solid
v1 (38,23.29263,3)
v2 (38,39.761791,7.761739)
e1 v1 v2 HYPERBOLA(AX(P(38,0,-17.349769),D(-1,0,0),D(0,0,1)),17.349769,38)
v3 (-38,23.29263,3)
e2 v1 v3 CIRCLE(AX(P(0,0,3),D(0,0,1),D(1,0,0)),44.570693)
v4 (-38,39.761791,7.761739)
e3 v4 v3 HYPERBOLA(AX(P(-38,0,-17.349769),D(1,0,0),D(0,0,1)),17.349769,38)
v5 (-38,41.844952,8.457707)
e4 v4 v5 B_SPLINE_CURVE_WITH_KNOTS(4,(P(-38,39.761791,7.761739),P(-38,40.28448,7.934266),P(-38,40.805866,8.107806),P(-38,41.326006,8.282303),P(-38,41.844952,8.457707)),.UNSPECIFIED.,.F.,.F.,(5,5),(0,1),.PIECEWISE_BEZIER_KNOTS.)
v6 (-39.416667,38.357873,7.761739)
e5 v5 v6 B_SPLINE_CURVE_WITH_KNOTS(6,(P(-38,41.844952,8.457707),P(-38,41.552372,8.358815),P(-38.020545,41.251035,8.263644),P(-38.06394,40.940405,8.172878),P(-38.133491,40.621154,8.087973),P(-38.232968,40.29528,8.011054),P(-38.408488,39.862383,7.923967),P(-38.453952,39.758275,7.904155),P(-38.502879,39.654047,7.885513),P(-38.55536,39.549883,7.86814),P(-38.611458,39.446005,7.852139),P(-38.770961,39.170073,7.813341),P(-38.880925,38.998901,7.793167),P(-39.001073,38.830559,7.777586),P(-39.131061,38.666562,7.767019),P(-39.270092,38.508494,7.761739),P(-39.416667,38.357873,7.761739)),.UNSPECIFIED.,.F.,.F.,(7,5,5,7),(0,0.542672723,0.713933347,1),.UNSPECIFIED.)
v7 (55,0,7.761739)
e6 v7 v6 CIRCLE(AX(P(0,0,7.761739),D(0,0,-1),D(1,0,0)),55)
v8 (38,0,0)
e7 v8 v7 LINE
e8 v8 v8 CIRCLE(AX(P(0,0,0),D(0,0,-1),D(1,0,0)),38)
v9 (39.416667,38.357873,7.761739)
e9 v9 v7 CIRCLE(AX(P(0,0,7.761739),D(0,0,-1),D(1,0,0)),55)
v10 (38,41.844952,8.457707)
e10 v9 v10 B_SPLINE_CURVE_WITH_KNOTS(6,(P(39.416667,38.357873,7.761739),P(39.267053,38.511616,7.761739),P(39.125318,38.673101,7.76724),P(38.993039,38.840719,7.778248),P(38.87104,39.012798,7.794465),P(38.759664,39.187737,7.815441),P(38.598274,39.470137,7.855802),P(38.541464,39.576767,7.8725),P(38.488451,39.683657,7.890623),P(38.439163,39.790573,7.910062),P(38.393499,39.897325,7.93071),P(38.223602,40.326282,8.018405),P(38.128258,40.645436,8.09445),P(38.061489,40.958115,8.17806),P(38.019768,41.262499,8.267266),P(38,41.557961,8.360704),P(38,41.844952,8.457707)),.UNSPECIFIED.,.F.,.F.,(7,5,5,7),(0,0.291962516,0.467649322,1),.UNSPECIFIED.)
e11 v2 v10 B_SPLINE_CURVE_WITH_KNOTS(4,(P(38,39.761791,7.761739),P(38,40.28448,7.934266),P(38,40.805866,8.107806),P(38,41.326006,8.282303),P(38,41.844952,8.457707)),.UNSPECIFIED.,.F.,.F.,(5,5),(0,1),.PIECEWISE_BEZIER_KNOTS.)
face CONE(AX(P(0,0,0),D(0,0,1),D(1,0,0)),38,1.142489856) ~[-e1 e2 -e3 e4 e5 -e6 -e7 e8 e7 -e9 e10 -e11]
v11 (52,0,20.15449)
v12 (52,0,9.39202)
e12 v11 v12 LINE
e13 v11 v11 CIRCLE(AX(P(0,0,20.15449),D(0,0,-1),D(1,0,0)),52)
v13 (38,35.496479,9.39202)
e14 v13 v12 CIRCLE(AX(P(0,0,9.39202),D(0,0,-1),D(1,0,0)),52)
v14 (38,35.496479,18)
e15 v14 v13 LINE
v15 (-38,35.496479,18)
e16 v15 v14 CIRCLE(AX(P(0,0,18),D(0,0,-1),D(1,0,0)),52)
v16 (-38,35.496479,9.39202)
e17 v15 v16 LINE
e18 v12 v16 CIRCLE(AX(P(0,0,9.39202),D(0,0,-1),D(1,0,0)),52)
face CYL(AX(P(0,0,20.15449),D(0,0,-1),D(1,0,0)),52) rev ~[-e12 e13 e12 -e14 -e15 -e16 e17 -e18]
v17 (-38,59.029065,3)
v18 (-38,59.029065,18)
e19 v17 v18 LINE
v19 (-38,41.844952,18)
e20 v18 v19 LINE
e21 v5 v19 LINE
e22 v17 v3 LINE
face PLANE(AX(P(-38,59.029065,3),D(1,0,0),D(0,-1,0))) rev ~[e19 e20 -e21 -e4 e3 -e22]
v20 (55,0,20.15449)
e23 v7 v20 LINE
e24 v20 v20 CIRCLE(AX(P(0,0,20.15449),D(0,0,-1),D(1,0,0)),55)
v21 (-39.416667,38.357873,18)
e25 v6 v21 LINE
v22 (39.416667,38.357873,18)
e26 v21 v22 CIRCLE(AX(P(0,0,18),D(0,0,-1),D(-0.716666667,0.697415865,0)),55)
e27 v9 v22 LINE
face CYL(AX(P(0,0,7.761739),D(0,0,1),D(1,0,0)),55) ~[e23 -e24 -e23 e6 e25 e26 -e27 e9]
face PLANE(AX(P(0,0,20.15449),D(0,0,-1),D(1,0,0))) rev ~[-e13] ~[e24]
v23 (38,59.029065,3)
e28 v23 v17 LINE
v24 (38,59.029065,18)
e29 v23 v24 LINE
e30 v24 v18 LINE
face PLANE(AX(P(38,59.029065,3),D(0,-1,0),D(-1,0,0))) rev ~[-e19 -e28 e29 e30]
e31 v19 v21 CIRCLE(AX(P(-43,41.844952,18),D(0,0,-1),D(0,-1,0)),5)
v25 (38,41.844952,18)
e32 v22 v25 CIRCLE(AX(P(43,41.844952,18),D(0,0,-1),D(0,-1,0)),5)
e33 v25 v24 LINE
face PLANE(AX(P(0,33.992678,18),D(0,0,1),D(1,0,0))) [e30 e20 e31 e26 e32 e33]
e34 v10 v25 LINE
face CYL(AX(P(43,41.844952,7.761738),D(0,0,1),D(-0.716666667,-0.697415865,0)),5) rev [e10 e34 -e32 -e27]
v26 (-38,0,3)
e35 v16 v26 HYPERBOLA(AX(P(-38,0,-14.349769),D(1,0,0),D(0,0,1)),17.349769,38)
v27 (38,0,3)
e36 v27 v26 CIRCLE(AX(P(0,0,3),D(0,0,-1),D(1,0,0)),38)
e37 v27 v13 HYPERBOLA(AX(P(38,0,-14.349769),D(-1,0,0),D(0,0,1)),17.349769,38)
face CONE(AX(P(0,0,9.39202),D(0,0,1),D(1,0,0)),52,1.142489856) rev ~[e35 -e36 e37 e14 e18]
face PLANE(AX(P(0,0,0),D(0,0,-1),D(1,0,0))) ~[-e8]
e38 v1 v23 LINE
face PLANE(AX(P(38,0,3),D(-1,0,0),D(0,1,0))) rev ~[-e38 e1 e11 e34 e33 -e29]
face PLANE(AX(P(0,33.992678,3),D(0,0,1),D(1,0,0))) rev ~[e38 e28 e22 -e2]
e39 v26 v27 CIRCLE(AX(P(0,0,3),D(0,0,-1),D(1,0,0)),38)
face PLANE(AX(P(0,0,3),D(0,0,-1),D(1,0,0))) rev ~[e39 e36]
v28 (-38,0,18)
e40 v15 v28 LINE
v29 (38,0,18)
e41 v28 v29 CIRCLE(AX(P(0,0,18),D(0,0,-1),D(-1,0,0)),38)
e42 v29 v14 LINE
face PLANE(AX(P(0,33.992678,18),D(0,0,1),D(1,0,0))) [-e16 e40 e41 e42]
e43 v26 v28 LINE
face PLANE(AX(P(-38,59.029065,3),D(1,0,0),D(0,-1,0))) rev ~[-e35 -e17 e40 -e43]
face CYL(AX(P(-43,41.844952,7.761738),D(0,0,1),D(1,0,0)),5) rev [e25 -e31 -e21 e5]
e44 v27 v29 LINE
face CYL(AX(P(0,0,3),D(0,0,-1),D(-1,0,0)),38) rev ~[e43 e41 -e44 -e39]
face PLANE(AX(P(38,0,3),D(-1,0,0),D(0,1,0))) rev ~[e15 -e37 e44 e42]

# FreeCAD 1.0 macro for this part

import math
import FreeCAD as App
import Part
import Sketcher
Q = App.Units.Quantity


def edges_at(feature, points):
    """Names of the edges that pass closest to the given points."""
    edges = feature.Shape.Edges
    near = lambda p: min(range(len(edges)), key=lambda i: edges[i].distToShape(Part.Vertex(*p))[0])
    return sorted({f"Edge{near(p) + 1}" for p in points})

doc = App.newDocument("Part")
body = doc.addObject("PartDesign::Body", "Body")

sketch1 = body.newObject("Sketcher::SketchObject", "Sketch")
sketch1.AttachmentSupport = (doc.getObject("XZ_Plane"), [""])
sketch1.MapMode = "FlatFace"
sketch1.addGeometry(Part.LineSegment(App.Vector(0, 3, 0), App.Vector(0, 0, 0)), False)
sketch1.addGeometry(Part.LineSegment(App.Vector(0, 0, 0), App.Vector(38, 0, 0)), False)
sketch1.addGeometry(Part.LineSegment(App.Vector(38, 0, 0), App.Vector(55, 7.8, 0)), False)
sketch1.addGeometry(Part.LineSegment(App.Vector(55, 7.8, 0), App.Vector(55, 20.2, 0)), False)
sketch1.addGeometry(Part.LineSegment(App.Vector(55, 20.2, 0), App.Vector(52, 20.2, 0)), False)
sketch1.addGeometry(Part.LineSegment(App.Vector(52, 20.2, 0), App.Vector(52, 9.4, 0)), False)
sketch1.addGeometry(Part.LineSegment(App.Vector(52, 9.4, 0), App.Vector(38, 3, 0)), False)
sketch1.addGeometry(Part.LineSegment(App.Vector(38, 3, 0), App.Vector(0, 3, 0)), False)
sketch1.addConstraint(Sketcher.Constraint("Coincident", 0, 2, 1, 1))
sketch1.addConstraint(Sketcher.Constraint("Coincident", 1, 2, 2, 1))
sketch1.addConstraint(Sketcher.Constraint("Coincident", 2, 2, 3, 1))
sketch1.addConstraint(Sketcher.Constraint("Coincident", 3, 2, 4, 1))
sketch1.addConstraint(Sketcher.Constraint("Coincident", 4, 2, 5, 1))
sketch1.addConstraint(Sketcher.Constraint("Coincident", 5, 2, 6, 1))
sketch1.addConstraint(Sketcher.Constraint("Coincident", 6, 2, 7, 1))
sketch1.addConstraint(Sketcher.Constraint("Coincident", 7, 2, 0, 1))
sketch1.addConstraint(Sketcher.Constraint("Vertical", 0))
sketch1.addConstraint(Sketcher.Constraint("Horizontal", 1))
sketch1.addConstraint(Sketcher.Constraint("Vertical", 3))
sketch1.addConstraint(Sketcher.Constraint("Horizontal", 4))
sketch1.addConstraint(Sketcher.Constraint("Vertical", 5))
sketch1.addConstraint(Sketcher.Constraint("Horizontal", 7))
sketch1.addConstraint(Sketcher.Constraint("Coincident", 0, 2, -1, 1))
sketch1.addConstraint(Sketcher.Constraint("Parallel", 2, 6))
sketch1.addConstraint(Sketcher.Constraint("Vertical", 1, 2, 6, 2))
sketch1.addConstraint(Sketcher.Constraint("Equal", 4, 0))
sketch1.addConstraint(Sketcher.Constraint("DistanceX", 1, 1, 1, 2, Q("38 mm")))
sketch1.addConstraint(Sketcher.Constraint("DistanceX", 4, 2, 4, 1, Q("3 mm")))
sketch1.addConstraint(Sketcher.Constraint("DistanceX", -1, 1, 2, 2, Q("55 mm")))
sketch1.addConstraint(Sketcher.Constraint("DistanceY", 3, 1, 3, 2, Q("12.392751 mm")))
sketch1.addConstraint(Sketcher.Constraint("DistanceY", 5, 2, 5, 1, Q("10.76247 mm")))
revolution = body.newObject("PartDesign::Revolution", "Revolution")
revolution.Profile = sketch1
revolution.ReferenceAxis = (sketch1, ["V_Axis"])
revolution.Angle = 360

sketch2 = body.newObject("Sketcher::SketchObject", "Sketch001")
sketch2.AttachmentSupport = (doc.getObject("XY_Plane"), [""])
sketch2.MapMode = "FlatFace"
sketch2.AttachmentOffset = App.Placement(App.Vector(0, 0, 3), App.Rotation())
sketch2.addGeometry(Part.LineSegment(App.Vector(-38, 59, 0), App.Vector(-38, 0, 0)), False)
sketch2.addGeometry(Part.ArcOfCircle(Part.Circle(App.Vector(0, 0, 0), App.Vector(0, 0, 1), 38), math.radians(0), math.radians(180)), False)
sketch2.addGeometry(Part.LineSegment(App.Vector(38, 0, 0), App.Vector(38, 59, 0)), False)
sketch2.addGeometry(Part.LineSegment(App.Vector(38, 59, 0), App.Vector(-38, 59, 0)), False)
sketch2.addConstraint(Sketcher.Constraint("Tangent", 0, 2, 1, 2))
sketch2.addConstraint(Sketcher.Constraint("Tangent", 1, 1, 2, 1))
sketch2.addConstraint(Sketcher.Constraint("Coincident", 2, 2, 3, 1))
sketch2.addConstraint(Sketcher.Constraint("Coincident", 3, 2, 0, 1))
sketch2.addConstraint(Sketcher.Constraint("Vertical", 0))
sketch2.addConstraint(Sketcher.Constraint("Vertical", 2))
sketch2.addConstraint(Sketcher.Constraint("Horizontal", 3))
sketch2.addConstraint(Sketcher.Constraint("Coincident", 1, 3, -1, 1))
sketch2.addConstraint(Sketcher.Constraint("Radius", 1, Q("38 mm")))
sketch2.addConstraint(Sketcher.Constraint("DistanceY", 0, 2, 0, 1, Q("59.029065 mm")))
pad1 = body.newObject("PartDesign::Pad", "Pad")
pad1.Profile = sketch2
pad1.Length = 15
doc.recompute()

fillet = body.newObject("PartDesign::Fillet", "Fillet")
fillet.Base = (pad1, edges_at(pad1, [(38, 39.762, 12.881), (-38, 39.762, 12.881)]))
fillet.Radius = 5

doc.recompute()
